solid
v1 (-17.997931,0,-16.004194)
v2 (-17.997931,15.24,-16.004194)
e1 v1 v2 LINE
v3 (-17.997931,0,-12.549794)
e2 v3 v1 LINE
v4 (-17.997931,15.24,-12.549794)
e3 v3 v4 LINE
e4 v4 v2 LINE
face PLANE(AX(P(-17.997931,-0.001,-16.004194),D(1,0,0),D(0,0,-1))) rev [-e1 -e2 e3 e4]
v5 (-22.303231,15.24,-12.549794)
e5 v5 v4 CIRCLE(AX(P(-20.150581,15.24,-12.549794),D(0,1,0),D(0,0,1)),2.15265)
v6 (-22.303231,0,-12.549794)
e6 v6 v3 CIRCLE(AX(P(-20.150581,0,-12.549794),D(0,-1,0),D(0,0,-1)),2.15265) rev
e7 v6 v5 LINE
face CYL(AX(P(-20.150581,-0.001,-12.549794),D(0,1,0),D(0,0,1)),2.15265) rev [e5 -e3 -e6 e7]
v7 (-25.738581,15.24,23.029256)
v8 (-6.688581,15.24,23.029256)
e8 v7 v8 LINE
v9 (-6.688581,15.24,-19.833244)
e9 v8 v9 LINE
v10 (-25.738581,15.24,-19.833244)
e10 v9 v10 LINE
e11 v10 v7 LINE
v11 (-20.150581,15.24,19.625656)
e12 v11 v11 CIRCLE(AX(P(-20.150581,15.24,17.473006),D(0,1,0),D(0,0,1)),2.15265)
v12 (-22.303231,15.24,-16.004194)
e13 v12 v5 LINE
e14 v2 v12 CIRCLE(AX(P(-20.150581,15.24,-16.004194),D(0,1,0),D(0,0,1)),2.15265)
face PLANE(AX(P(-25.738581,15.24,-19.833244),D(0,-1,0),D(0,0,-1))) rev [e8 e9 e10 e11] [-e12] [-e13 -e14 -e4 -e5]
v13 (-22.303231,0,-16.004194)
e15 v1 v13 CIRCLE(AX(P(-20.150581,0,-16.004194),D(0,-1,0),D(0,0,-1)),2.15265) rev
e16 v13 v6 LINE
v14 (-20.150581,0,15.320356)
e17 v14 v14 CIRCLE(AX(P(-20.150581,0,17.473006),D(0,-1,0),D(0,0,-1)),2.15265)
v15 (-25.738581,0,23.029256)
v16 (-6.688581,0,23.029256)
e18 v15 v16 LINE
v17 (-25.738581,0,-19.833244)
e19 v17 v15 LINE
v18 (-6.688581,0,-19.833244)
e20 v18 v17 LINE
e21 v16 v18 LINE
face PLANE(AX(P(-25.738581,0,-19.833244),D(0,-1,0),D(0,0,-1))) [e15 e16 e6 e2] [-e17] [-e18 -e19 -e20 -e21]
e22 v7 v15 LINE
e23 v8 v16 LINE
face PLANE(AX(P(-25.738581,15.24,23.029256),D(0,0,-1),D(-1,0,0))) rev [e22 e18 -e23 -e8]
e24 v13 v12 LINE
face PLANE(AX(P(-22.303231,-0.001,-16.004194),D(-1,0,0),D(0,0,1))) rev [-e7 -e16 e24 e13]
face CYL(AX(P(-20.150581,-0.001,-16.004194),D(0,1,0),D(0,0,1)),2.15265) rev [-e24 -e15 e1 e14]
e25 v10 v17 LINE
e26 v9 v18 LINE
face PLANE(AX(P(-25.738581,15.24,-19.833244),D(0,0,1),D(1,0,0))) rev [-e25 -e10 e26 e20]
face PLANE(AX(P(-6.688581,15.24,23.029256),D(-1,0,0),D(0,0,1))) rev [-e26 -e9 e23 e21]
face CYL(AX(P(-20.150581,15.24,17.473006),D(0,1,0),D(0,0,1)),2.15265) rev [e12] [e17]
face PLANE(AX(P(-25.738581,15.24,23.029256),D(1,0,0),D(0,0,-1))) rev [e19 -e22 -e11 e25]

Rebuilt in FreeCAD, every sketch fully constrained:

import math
import FreeCAD as App
import Part
import Sketcher

V = App.Vector
Q = App.Units.Quantity


def add_polygon(sketch, points):
    """Adds a closed chain of lines whose ends are joined by coincident constraints."""
    first, n = sketch.GeometryCount, len(points)
    for a, b in zip(points, points[1:] + points[:1]):
        sketch.addGeometry(Part.LineSegment(App.Vector(*a, 0), App.Vector(*b, 0)), False)
    for i in range(n):
        sketch.addConstraint(Sketcher.Constraint("Coincident", first + i, 2, first + (i + 1) % n, 1))

doc = App.newDocument("Part")
body = doc.addObject("PartDesign::Body", "Body")

# Sketch on XZ plane
sketch1 = doc.addObject("Sketcher::SketchObject", "Sketch")
body.addObject(sketch1)
sketch1.AttachmentSupport = (doc.XZ_Plane, [""])
sketch1.MapMode = "FlatFace"
add_polygon(sketch1, [(-25.738581, -19.833244), (-25.738581, 23.029256), (-6.688581, 23.029256), (-6.688581, -19.833244)])  # lines 0-3
sketch1.addConstraint([
    Sketcher.Constraint("Vertical", 0),
    Sketcher.Constraint("Horizontal", 1),
    Sketcher.Constraint("Vertical", 2),
    Sketcher.Constraint("Horizontal", 3),
    Sketcher.Constraint("DistanceX", 1, 1, 1, 2, Q("0.75 in")),
    Sketcher.Constraint("DistanceY", 0, 1, 0, 2, Q("1.6875 in")),
    Sketcher.Constraint("DistanceX", 0, 2, -1, 1, 25.738581),
    Sketcher.Constraint("DistanceY", -1, 1, 0, 2, 23.029256),
])
pad1 = doc.addObject("PartDesign::Pad", "Pad")
body.addObject(pad1)
pad1.Profile = sketch1
pad1.Length = Q("0.6 in")
pad1.Reversed = True

# Sketch on XZ plane
sketch2 = doc.addObject("Sketcher::SketchObject", "Sketch001")
body.addObject(sketch2)
sketch2.AttachmentSupport = (doc.XZ_Plane, [""])
sketch2.MapMode = "FlatFace"
sketch2.AttachmentOffset = App.Placement(V(0, 0, -0.6 * 25.4), App.Rotation())
sketch2.addGeometry(Part.Circle(V(-20.150581, 17.473006, 0), V(0, 0, 1), 2.15265), False)
sketch2.addConstraint([
    Sketcher.Constraint("Diameter", 0, Q("0.1695 in")),
    Sketcher.Constraint("DistanceX", 0, 3, -1, 1, 20.150581),
    Sketcher.Constraint("DistanceY", -1, 1, 0, 3, 17.473006),
])
doc.recompute()
hole = doc.addObject("PartDesign::Hole", "Hole")
body.addObject(hole)
hole.Profile = sketch2
hole.ThreadType = "None"
hole.Diameter = Q("0.1695 in")
hole.DepthType = "Dimension"
hole.Depth = Q("0.6 in")
hole.DrillPoint = "Flat"
hole.Reversed = True

# Sketch on XZ plane
sketch3 = doc.addObject("Sketcher::SketchObject", "Sketch002")
body.addObject(sketch3)
sketch3.AttachmentSupport = (doc.XZ_Plane, [""])
sketch3.MapMode = "FlatFace"
sketch3.AttachmentOffset = App.Placement(V(0, 0, -0.6 * 25.4), App.Rotation())
sketch3.addGeometry([
    Part.LineSegment(V(-17.997931, -12.549794, 0), V(-17.997931, -16.004194, 0)),
    Part.ArcOfCircle(Part.Circle(V(-20.150581, -16.004194, 0), V(0, 0, 1), 2.15265), math.radians(180), math.radians(360)),
    Part.LineSegment(V(-22.303231, -16.004194, 0), V(-22.303231, -12.549794, 0)),
    Part.ArcOfCircle(Part.Circle(V(-20.150581, -12.549794, 0), V(0, 0, 1), 2.15265), math.radians(0), math.radians(180)),
], False)
sketch3.addConstraint([
    Sketcher.Constraint("Tangent", 0, 2, 1, 2),
    Sketcher.Constraint("Tangent", 1, 1, 2, 1),
    Sketcher.Constraint("Tangent", 2, 2, 3, 2),
    Sketcher.Constraint("Tangent", 3, 1, 0, 1),
    Sketcher.Constraint("Vertical", 0),
    Sketcher.Constraint("Vertical", 2),
    Sketcher.Constraint("DistanceY", 0, 2, 0, 1, Q("0.136 in")),
    Sketcher.Constraint("Radius", 1, 2.15265),
    Sketcher.Constraint("DistanceX", 1, 3, -1, 1, 20.150581),
    Sketcher.Constraint("DistanceY", 1, 3, -1, 1, 16.004194),
])
pocket1 = doc.addObject("PartDesign::Pocket", "Pocket")
body.addObject(pocket1)
pocket1.Profile = sketch3
pocket1.Type = "UpToFirst"
pocket1.Reversed = True

doc.recompute()
